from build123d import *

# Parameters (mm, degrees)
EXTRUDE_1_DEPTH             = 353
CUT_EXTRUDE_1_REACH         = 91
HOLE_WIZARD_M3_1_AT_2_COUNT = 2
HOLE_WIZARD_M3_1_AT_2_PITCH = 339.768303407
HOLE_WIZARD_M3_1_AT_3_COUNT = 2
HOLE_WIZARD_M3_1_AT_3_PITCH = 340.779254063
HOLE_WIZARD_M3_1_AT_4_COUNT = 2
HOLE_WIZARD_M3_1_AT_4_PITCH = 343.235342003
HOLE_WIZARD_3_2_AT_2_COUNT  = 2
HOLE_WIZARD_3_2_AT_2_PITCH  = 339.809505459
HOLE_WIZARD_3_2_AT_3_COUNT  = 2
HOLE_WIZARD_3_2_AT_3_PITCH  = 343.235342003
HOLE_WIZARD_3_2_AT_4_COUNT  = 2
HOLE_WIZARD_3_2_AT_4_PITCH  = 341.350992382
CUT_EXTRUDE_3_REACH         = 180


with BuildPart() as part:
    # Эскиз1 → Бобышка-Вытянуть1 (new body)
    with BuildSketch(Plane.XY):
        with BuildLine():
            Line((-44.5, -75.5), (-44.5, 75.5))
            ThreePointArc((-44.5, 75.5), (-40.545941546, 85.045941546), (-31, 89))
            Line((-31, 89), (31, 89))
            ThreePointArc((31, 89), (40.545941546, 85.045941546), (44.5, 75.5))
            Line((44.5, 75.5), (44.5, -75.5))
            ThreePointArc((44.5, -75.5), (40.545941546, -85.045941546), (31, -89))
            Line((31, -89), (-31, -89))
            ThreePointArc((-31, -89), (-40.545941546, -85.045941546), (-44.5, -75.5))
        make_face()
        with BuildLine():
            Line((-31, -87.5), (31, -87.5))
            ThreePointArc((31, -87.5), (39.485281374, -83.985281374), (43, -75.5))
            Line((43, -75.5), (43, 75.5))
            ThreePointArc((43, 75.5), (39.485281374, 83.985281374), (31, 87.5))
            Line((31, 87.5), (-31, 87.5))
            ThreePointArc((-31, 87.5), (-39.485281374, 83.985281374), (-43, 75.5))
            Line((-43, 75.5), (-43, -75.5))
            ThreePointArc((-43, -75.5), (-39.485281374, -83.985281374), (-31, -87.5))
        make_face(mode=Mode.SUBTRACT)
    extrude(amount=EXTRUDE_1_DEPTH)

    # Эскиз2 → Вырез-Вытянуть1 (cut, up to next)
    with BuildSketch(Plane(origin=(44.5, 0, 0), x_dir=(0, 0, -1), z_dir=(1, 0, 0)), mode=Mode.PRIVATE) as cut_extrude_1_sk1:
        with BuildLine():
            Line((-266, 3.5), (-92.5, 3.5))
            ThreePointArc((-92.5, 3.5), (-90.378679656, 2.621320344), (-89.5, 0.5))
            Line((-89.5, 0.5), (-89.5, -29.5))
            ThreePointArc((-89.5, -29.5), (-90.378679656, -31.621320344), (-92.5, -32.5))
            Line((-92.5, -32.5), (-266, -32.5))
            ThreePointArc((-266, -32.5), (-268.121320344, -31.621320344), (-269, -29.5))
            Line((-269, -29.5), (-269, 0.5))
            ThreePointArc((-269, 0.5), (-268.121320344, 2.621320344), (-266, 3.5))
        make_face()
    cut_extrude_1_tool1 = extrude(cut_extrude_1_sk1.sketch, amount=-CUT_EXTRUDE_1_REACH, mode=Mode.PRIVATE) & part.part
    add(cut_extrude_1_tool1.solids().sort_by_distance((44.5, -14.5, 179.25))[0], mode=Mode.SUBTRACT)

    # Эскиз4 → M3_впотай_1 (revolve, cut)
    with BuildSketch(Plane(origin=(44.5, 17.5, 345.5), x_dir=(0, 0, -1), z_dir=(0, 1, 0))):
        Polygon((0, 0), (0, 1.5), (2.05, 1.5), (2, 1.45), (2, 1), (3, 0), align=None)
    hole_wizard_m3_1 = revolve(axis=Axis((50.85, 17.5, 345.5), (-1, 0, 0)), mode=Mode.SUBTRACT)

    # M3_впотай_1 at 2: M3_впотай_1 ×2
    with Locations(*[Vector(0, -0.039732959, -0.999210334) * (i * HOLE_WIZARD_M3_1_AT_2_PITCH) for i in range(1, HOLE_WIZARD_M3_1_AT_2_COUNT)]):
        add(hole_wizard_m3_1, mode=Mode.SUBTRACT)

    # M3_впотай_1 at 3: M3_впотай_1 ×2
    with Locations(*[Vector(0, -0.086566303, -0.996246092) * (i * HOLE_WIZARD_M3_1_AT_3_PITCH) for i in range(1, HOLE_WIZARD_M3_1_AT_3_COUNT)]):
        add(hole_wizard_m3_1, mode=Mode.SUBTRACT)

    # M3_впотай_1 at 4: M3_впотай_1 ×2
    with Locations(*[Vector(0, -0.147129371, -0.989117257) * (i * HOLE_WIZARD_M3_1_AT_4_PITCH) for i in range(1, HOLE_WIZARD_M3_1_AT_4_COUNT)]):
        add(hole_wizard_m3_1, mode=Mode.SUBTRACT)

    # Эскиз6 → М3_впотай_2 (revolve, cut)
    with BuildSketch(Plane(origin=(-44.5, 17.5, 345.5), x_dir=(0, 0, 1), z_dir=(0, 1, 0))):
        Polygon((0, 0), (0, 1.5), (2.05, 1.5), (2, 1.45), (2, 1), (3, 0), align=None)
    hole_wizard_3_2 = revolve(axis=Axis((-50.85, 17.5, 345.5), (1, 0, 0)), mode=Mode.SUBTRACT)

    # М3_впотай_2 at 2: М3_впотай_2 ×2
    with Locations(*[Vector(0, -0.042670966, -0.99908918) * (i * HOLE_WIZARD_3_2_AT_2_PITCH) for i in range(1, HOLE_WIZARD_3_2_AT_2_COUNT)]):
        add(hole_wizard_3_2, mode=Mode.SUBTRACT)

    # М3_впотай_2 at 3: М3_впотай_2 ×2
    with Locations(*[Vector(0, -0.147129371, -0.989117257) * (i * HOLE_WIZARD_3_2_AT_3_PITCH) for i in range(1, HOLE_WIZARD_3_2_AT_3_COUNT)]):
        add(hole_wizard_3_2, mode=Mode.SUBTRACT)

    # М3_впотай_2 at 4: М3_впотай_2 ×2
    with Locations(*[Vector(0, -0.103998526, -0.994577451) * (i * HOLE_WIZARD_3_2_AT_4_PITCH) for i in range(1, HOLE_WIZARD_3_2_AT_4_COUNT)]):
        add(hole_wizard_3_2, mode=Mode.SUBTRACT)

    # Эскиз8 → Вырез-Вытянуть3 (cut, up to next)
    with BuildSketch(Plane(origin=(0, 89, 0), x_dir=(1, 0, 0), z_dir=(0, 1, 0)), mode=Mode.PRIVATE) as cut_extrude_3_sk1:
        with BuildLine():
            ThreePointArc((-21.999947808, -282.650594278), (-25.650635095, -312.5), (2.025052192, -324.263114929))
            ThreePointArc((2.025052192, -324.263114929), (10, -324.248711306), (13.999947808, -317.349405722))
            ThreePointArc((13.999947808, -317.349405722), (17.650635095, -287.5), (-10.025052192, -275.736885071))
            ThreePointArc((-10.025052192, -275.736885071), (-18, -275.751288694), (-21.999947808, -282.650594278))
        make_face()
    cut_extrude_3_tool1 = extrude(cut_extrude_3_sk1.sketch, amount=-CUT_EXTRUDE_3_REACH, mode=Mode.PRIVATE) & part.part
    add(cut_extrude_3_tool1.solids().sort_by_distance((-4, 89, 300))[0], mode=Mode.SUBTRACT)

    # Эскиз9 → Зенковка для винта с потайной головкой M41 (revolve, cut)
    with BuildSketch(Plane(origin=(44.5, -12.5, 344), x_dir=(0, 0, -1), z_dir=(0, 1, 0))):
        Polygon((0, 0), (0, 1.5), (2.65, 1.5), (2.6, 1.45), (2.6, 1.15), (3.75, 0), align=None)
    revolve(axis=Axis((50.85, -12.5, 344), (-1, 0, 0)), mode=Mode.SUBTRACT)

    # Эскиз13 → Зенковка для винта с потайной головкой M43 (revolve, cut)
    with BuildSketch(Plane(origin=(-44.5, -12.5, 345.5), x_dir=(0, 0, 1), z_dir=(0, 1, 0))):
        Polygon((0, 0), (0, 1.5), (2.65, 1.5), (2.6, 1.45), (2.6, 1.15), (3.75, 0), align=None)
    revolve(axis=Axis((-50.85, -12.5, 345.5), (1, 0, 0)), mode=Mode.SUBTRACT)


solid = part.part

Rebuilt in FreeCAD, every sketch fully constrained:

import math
import FreeCAD as App
import Part
import Sketcher
from FreeCAD import Vector
Q = App.Units.Quantity


def add_polygon(sketch, points):
    """Adds a closed chain of lines whose ends are joined by coincident constraints."""
    first, n = sketch.GeometryCount, len(points)
    for a, b in zip(points, points[1:] + points[:1]):
        sketch.addGeometry(Part.LineSegment(App.Vector(*a, 0), App.Vector(*b, 0)), False)
    for i in range(n):
        sketch.addConstraint(Sketcher.Constraint("Coincident", first + i, 2, first + (i + 1) % n, 1))

doc = App.newDocument("Part")
body = doc.addObject("PartDesign::Body", "Body")

# Sketch on XY plane
sketch1 = body.newObject("Sketcher::SketchObject", "Sketch")
sketch1.AttachmentSupport = (doc.getObject("XY_Plane"), [""])
sketch1.MapMode = "FlatFace"
sketch1.addGeometry([
    Part.LineSegment(Vector(-44, 76, 0), Vector(-44, -76, 0)),  # 0
    Part.ArcOfCircle(Part.Circle(Vector(-31, -76, 0), Vector(0, 0, 1), 14), math.radians(180), math.radians(270)),  # 1
    Part.LineSegment(Vector(-31, -89, 0), Vector(31, -89, 0)),  # 2
    Part.ArcOfCircle(Part.Circle(Vector(31, -76, 0), Vector(0, 0, 1), 14), math.radians(-90), math.radians(0)),  # 3
    Part.LineSegment(Vector(44, -76, 0), Vector(44, 76, 0)),  # 4
    Part.ArcOfCircle(Part.Circle(Vector(31, 76, 0), Vector(0, 0, 1), 14), math.radians(0), math.radians(90)),  # 5
    Part.LineSegment(Vector(31, 89, 0), Vector(-31, 89, 0)),  # 6
    Part.ArcOfCircle(Part.Circle(Vector(-31, 76, 0), Vector(0, 0, 1), 14), math.radians(90), math.radians(180)),  # 7
    Part.ArcOfCircle(Part.Circle(Vector(-31, -75, 0), Vector(0, 0, 1), 12), math.radians(-180), math.radians(-90)),  # 8
    Part.LineSegment(Vector(-43, -76, 0), Vector(-43, 76, 0)),  # 9
    Part.ArcOfCircle(Part.Circle(Vector(-31, 75, 0), Vector(0, 0, 1), 12), math.radians(90), math.radians(180)),  # 10
    Part.LineSegment(Vector(-31, 88, 0), Vector(31, 88, 0)),  # 11
    Part.ArcOfCircle(Part.Circle(Vector(31, 75, 0), Vector(0, 0, 1), 12), math.radians(0), math.radians(90)),  # 12
    Part.LineSegment(Vector(43, 76, 0), Vector(43, -76, 0)),  # 13
    Part.ArcOfCircle(Part.Circle(Vector(31, -75, 0), Vector(0, 0, 1), 12), math.radians(-90), math.radians(0)),  # 14
    Part.LineSegment(Vector(31, -88, 0), Vector(-31, -88, 0)),  # 15
], False)
sketch1.addConstraint([
    Sketcher.Constraint("Tangent", 0, 2, 1, 1),
    Sketcher.Constraint("Tangent", 1, 2, 2, 1),
    Sketcher.Constraint("Tangent", 2, 2, 3, 1),
    Sketcher.Constraint("Tangent", 3, 2, 4, 1),
    Sketcher.Constraint("Tangent", 4, 2, 5, 1),
    Sketcher.Constraint("Tangent", 5, 2, 6, 1),
    Sketcher.Constraint("Tangent", 6, 2, 7, 1),
    Sketcher.Constraint("Tangent", 7, 2, 0, 1),
    Sketcher.Constraint("Tangent", 8, 1, 9, 1),
    Sketcher.Constraint("Tangent", 9, 2, 10, 2),
    Sketcher.Constraint("Tangent", 10, 1, 11, 1),
    Sketcher.Constraint("Tangent", 11, 2, 12, 2),
    Sketcher.Constraint("Tangent", 12, 1, 13, 1),
    Sketcher.Constraint("Tangent", 13, 2, 14, 2),
    Sketcher.Constraint("Tangent", 14, 1, 15, 1),
    Sketcher.Constraint("Tangent", 15, 2, 8, 2),
    Sketcher.Constraint("Vertical", 0),
    Sketcher.Constraint("Horizontal", 2),
    Sketcher.Constraint("Vertical", 4),
    Sketcher.Constraint("Horizontal", 6),
    Sketcher.Constraint("Vertical", 9),
    Sketcher.Constraint("Horizontal", 11),
    Sketcher.Constraint("Vertical", 13),
    Sketcher.Constraint("Horizontal", 15),
    Sketcher.Constraint("Coincident", 8, 3, 1, 3),
    Sketcher.Constraint("Coincident", 10, 3, 7, 3),
    Sketcher.Constraint("Coincident", 12, 3, 5, 3),
    Sketcher.Constraint("Equal", 1, 3),
    Sketcher.Constraint("Equal", 3, 5),
    Sketcher.Constraint("Equal", 5, 7),
    Sketcher.Constraint("Equal", 12, 14),
    Sketcher.Constraint("Symmetric", 1, 3, 5, 3, -1, 1),
    Sketcher.Constraint("Radius", 8, 12.0),
    Sketcher.Constraint("Radius", 1, 13.5),
    Sketcher.Constraint("DistanceX", 2, 1, 2, 2, 62.0),
    Sketcher.Constraint("DistanceY", 0, 2, 0, 1, 151.0),
])
pad1 = body.newObject("PartDesign::Pad", "Pad")
pad1.Profile = sketch1
pad1.Length = 353

# Sketch on YZ plane
sketch2 = body.newObject("Sketcher::SketchObject", "Sketch001")
sketch2.AttachmentSupport = (doc.getObject("YZ_Plane"), [""])
sketch2.MapMode = "FlatFace"
sketch2.AttachmentOffset = App.Placement(Vector(0, 0, 44.5), App.Rotation())
sketch2.addGeometry([
    Part.LineSegment(Vector(3.5, 92.5, 0), Vector(3.5, 266, 0)),  # 0
    Part.ArcOfCircle(Part.Circle(Vector(0.5, 266, 0), Vector(0, 0, 1), 3), math.radians(0), math.radians(90)),  # 1
    Part.LineSegment(Vector(0.5, 269, 0), Vector(-29.5, 269, 0)),  # 2
    Part.ArcOfCircle(Part.Circle(Vector(-29.5, 266, 0), Vector(0, 0, 1), 3), math.radians(90), math.radians(180)),  # 3
    Part.LineSegment(Vector(-32.5, 266, 0), Vector(-32.5, 92.5, 0)),  # 4
    Part.ArcOfCircle(Part.Circle(Vector(-29.5, 92.5, 0), Vector(0, 0, 1), 3), math.radians(180), math.radians(270)),  # 5
    Part.LineSegment(Vector(-29.5, 89.5, 0), Vector(0.5, 89.5, 0)),  # 6
    Part.ArcOfCircle(Part.Circle(Vector(0.5, 92.5, 0), Vector(0, 0, 1), 3), math.radians(-90), math.radians(0)),  # 7
], False)
sketch2.addConstraint([
    Sketcher.Constraint("Tangent", 0, 2, 1, 1),
    Sketcher.Constraint("Tangent", 1, 2, 2, 1),
    Sketcher.Constraint("Tangent", 2, 2, 3, 1),
    Sketcher.Constraint("Tangent", 3, 2, 4, 1),
    Sketcher.Constraint("Tangent", 4, 2, 5, 1),
    Sketcher.Constraint("Tangent", 5, 2, 6, 1),
    Sketcher.Constraint("Tangent", 6, 2, 7, 1),
    Sketcher.Constraint("Tangent", 7, 2, 0, 1),
    Sketcher.Constraint("Vertical", 0),
    Sketcher.Constraint("Horizontal", 2),
    Sketcher.Constraint("Vertical", 4),
    Sketcher.Constraint("Horizontal", 6),
    Sketcher.Constraint("Equal", 1, 3),
    Sketcher.Constraint("Equal", 3, 5),
    Sketcher.Constraint("Equal", 5, 7),
    Sketcher.Constraint("Radius", 1, 3.0),
    Sketcher.Constraint("DistanceX", 2, 2, 2, 1, 30.0),
    Sketcher.Constraint("DistanceY", 0, 1, 0, 2, 173.5),
    Sketcher.Constraint("DistanceY", -1, 1, 1, 3, 266.0),
    Sketcher.Constraint("DistanceX", -1, 1, 1, 3, 0.5),
])
pocket1 = body.newObject("PartDesign::Pocket", "Pocket")
pocket1.Profile = sketch2
pocket1.Type = "UpToFirst"

# Sketch on XZ plane
sketch3 = body.newObject("Sketcher::SketchObject", "Sketch002")
sketch3.AttachmentSupport = (doc.getObject("XZ_Plane"), [""])
sketch3.MapMode = "FlatFace"
sketch3.AttachmentOffset = App.Placement(Vector(0, 0, -17.5), App.Rotation())
add_polygon(sketch3, [(43, 345.5), (44.5, 345.5), (44.5, 342.5), (43.5, 343.5), (43.05, 343.5), (43, 343.45)])  # lines 0-5
sketch3.addGeometry(Part.LineSegment(Vector(44.5, 345.5, 0), Vector(43, 345.5, 0)), True)  # axis
sketch3.addConstraint([
    Sketcher.Constraint("Horizontal", 0),
    Sketcher.Constraint("Vertical", 1),
    Sketcher.Constraint("Horizontal", 3),
    Sketcher.Constraint("Vertical", 5),
    Sketcher.Constraint("Horizontal", 6),
    Sketcher.Constraint("Coincident", 6, 1, 0, 2),
    Sketcher.Constraint("Perpendicular", 2, 4),
    Sketcher.Constraint("Vertical", 4, 2, 6, 2),
    Sketcher.Constraint("DistanceY", 1, 2, 1, 1, 3.0),
    Sketcher.Constraint("Angle", 2, Q("135 deg")),
    Sketcher.Constraint("DistanceX", 0, 1, 0, 2, 1.5),
    Sketcher.Constraint("DistanceX", -1, 1, 4, 2, 43.0),
    Sketcher.Constraint("DistanceX", 2, 2, 1, 2, 1.0),
    Sketcher.Constraint("DistanceX", 3, 2, 3, 1, 0.45),
    Sketcher.Constraint("DistanceY", -1, 1, 0, 2, 345.5),
])
groove = body.newObject("PartDesign::Groove", "Groove")
groove.Profile = sketch3
groove.ReferenceAxis = (sketch3, ["Axis0"])
groove.Angle = 360
doc.recompute()

datumline = body.newObject("PartDesign::Line", "DatumLine")
datumline.Placement = App.Placement(Vector(0, 0, 0), App.Rotation(Vector(0, 0, 1), Vector(0, -0.039732959, -0.999210334)))
linearpattern = body.newObject("PartDesign::LinearPattern", "LinearPattern")
linearpattern.Originals = [groove]
linearpattern.Direction = (datumline, [""])
linearpattern.Mode = "offset"
linearpattern.Offset = 339.768303
linearpattern.Occurrences = 2
body.Tip = linearpattern
doc.recompute()

datumline2 = body.newObject("PartDesign::Line", "DatumLine001")
datumline2.Placement = App.Placement(Vector(0, 0, 0), App.Rotation(Vector(0, 0, 1), Vector(0, -0.086566303, -0.996246092)))
linearpattern2 = body.newObject("PartDesign::LinearPattern", "LinearPattern001")
linearpattern2.Originals = [groove]
linearpattern2.Direction = (datumline2, [""])
linearpattern2.Mode = "offset"
linearpattern2.Offset = 340.779254
linearpattern2.Occurrences = 2
body.Tip = linearpattern2
doc.recompute()

datumline3 = body.newObject("PartDesign::Line", "DatumLine002")
datumline3.Placement = App.Placement(Vector(0, 0, 0), App.Rotation(Vector(0, 0, 1), Vector(0, -0.147129371, -0.989117257)))
linearpattern3 = body.newObject("PartDesign::LinearPattern", "LinearPattern002")
linearpattern3.Originals = [groove]
linearpattern3.Direction = (datumline3, [""])
linearpattern3.Mode = "offset"
linearpattern3.Offset = 343.235342
linearpattern3.Occurrences = 2
body.Tip = linearpattern3

# Sketch on XZ plane
sketch4 = body.newObject("Sketcher::SketchObject", "Sketch003")
sketch4.AttachmentSupport = (doc.getObject("XZ_Plane"), [""])
sketch4.MapMode = "FlatFace"
sketch4.AttachmentOffset = App.Placement(Vector(0, 0, -17.5), App.Rotation())
add_polygon(sketch4, [(-43, 345.5), (-44.5, 345.5), (-44.5, 348.5), (-43.5, 347.5), (-43.05, 347.5), (-43, 347.55)])  # lines 0-5
sketch4.addGeometry(Part.LineSegment(Vector(-44.5, 345.5, 0), Vector(-43, 345.5, 0)), True)  # axis
sketch4.addConstraint([
    Sketcher.Constraint("Horizontal", 0),
    Sketcher.Constraint("Vertical", 1),
    Sketcher.Constraint("Horizontal", 3),
    Sketcher.Constraint("Vertical", 5),
    Sketcher.Constraint("Horizontal", 6),
    Sketcher.Constraint("Coincident", 6, 1, 0, 2),
    Sketcher.Constraint("Perpendicular", 2, 4),
    Sketcher.Constraint("Vertical", 4, 2, 6, 2),
    Sketcher.Constraint("DistanceY", 1, 1, 1, 2, 3.0),
    Sketcher.Constraint("Angle", 2, Q("-45 deg")),
    Sketcher.Constraint("DistanceX", 0, 2, 0, 1, 1.5),
    Sketcher.Constraint("DistanceX", 4, 2, -1, 1, 43.0),
    Sketcher.Constraint("DistanceX", 1, 2, 2, 2, 1.0),
    Sketcher.Constraint("DistanceX", 3, 1, 3, 2, 0.45),
    Sketcher.Constraint("DistanceY", -1, 1, 0, 2, 345.5),
])
groove2 = body.newObject("PartDesign::Groove", "Groove001")
groove2.Profile = sketch4
groove2.ReferenceAxis = (sketch4, ["Axis0"])
groove2.Angle = 360
doc.recompute()

datumline4 = body.newObject("PartDesign::Line", "DatumLine003")
datumline4.Placement = App.Placement(Vector(0, 0, 0), App.Rotation(Vector(0, 0, 1), Vector(0, -0.042670966, -0.99908918)))
linearpattern4 = body.newObject("PartDesign::LinearPattern", "LinearPattern003")
linearpattern4.Originals = [groove2]
linearpattern4.Direction = (datumline4, [""])
linearpattern4.Mode = "offset"
linearpattern4.Offset = 339.809506
linearpattern4.Occurrences = 2
body.Tip = linearpattern4
doc.recompute()

datumline5 = body.newObject("PartDesign::Line", "DatumLine004")
datumline5.Placement = App.Placement(Vector(0, 0, 0), App.Rotation(Vector(0, 0, 1), Vector(0, -0.147129371, -0.989117257)))
linearpattern5 = body.newObject("PartDesign::LinearPattern", "LinearPattern004")
linearpattern5.Originals = [groove2]
linearpattern5.Direction = (datumline5, [""])
linearpattern5.Mode = "offset"
linearpattern5.Offset = 343.235342
linearpattern5.Occurrences = 2
body.Tip = linearpattern5
doc.recompute()

datumline6 = body.newObject("PartDesign::Line", "DatumLine005")
datumline6.Placement = App.Placement(Vector(0, 0, 0), App.Rotation(Vector(0, 0, 1), Vector(0, -0.103998526, -0.994577451)))
linearpattern6 = body.newObject("PartDesign::LinearPattern", "LinearPattern005")
linearpattern6.Originals = [groove2]
linearpattern6.Direction = (datumline6, [""])
linearpattern6.Mode = "offset"
linearpattern6.Offset = 341.350992
linearpattern6.Occurrences = 2
body.Tip = linearpattern6

# Sketch on XZ plane
sketch5 = body.newObject("Sketcher::SketchObject", "Sketch004")
sketch5.AttachmentSupport = (doc.getObject("XZ_Plane"), [""])
sketch5.MapMode = "FlatFace"
sketch5.AttachmentOffset = App.Placement(Vector(0, 0, -89), App.Rotation())
sketch5.addGeometry([
    Part.ArcOfCircle(Part.Circle(Vector(-4, 300, 0), Vector(0, 0, 1), 25), math.radians(76), math.radians(224)),
    Part.ArcOfCircle(Part.Circle(Vector(6, 317, 0), Vector(0, 0, 1), 8), math.radians(0), math.radians(120)),
    Part.ArcOfCircle(Part.Circle(Vector(-4, 300, 0), Vector(0, 0, 1), 25), math.radians(-104), math.radians(44)),
    Part.ArcOfCircle(Part.Circle(Vector(-14, 283, 0), Vector(0, 0, 1), 8), math.radians(-180), math.radians(-60)),
], False)
sketch5.addConstraint([
    Sketcher.Constraint("Coincident", 0, 1, 1, 2),
    Sketcher.Constraint("Coincident", 1, 1, 2, 2),
    Sketcher.Constraint("Coincident", 2, 1, 3, 2),
    Sketcher.Constraint("Coincident", 3, 1, 0, 2),
    Sketcher.Constraint("Coincident", 2, 3, 0, 3),
    Sketcher.Constraint("Equal", 0, 2),
    Sketcher.Constraint("Equal", 1, 3),
    Sketcher.Constraint("Radius", 0, 25.0),
    Sketcher.Constraint("Radius", 1, 8.0),
    Sketcher.Constraint("DistanceX", 0, 3, -1, 1, 4.0),
    Sketcher.Constraint("DistanceY", -1, 1, 0, 3, 300.0),
    Sketcher.Constraint("DistanceX", -1, 1, 1, 3, 6.0),
    Sketcher.Constraint("DistanceX", 3, 3, -1, 1, 14.0),
    Sketcher.Constraint("DistanceX", 2, 1, 1, 1, 24.025),
    Sketcher.Constraint("DistanceY", -1, 1, 1, 3, 317.320508),
])
pocket2 = body.newObject("PartDesign::Pocket", "Pocket001")
pocket2.Profile = sketch5
pocket2.Type = "UpToFirst"
pocket2.Reversed = True

# Sketch on XZ plane
sketch6 = body.newObject("Sketcher::SketchObject", "Sketch005")
sketch6.AttachmentSupport = (doc.getObject("XZ_Plane"), [""])
sketch6.MapMode = "FlatFace"
sketch6.AttachmentOffset = App.Placement(Vector(0, 0, 12.5), App.Rotation())
add_polygon(sketch6, [(43, 344), (44.5, 344), (44.5, 340.25), (43.35, 341.4), (43.05, 341.4), (43, 341.35)])  # lines 0-5
sketch6.addGeometry(Part.LineSegment(Vector(44.5, 344, 0), Vector(43, 344, 0)), True)  # axis
sketch6.addConstraint([
    Sketcher.Constraint("Horizontal", 0),
    Sketcher.Constraint("Vertical", 1),
    Sketcher.Constraint("Horizontal", 3),
    Sketcher.Constraint("Vertical", 5),
    Sketcher.Constraint("Horizontal", 6),
    Sketcher.Constraint("Coincident", 6, 1, 0, 2),
    Sketcher.Constraint("Perpendicular", 2, 4),
    Sketcher.Constraint("Vertical", 4, 2, 6, 2),
    Sketcher.Constraint("Angle", 2, Q("135 deg")),
    Sketcher.Constraint("DistanceX", 0, 1, 0, 2, 1.5),
    Sketcher.Constraint("DistanceX", 3, 2, 3, 1, 0.3),
    Sketcher.Constraint("DistanceY", -1, 1, 0, 2, 344.0),
    Sketcher.Constraint("DistanceX", -1, 1, 4, 2, 43.0),
    Sketcher.Constraint("DistanceY", 1, 2, 1, 1, 3.75),
    Sketcher.Constraint("DistanceY", 5, 1, 5, 2, 2.65),
])
groove3 = body.newObject("PartDesign::Groove", "Groove002")
groove3.Profile = sketch6
groove3.ReferenceAxis = (sketch6, ["Axis0"])
groove3.Angle = 360

# Sketch on XZ plane
sketch7 = body.newObject("Sketcher::SketchObject", "Sketch006")
sketch7.AttachmentSupport = (doc.getObject("XZ_Plane"), [""])
sketch7.MapMode = "FlatFace"
sketch7.AttachmentOffset = App.Placement(Vector(0, 0, 12.5), App.Rotation())
add_polygon(sketch7, [(-43, 345.5), (-44.5, 345.5), (-44.5, 349.25), (-43.35, 348.1), (-43.05, 348.1), (-43, 348.15)])  # lines 0-5
sketch7.addGeometry(Part.LineSegment(Vector(-44.5, 345.5, 0), Vector(-43, 345.5, 0)), True)  # axis
sketch7.addConstraint([
    Sketcher.Constraint("Horizontal", 0),
    Sketcher.Constraint("Vertical", 1),
    Sketcher.Constraint("Horizontal", 3),
    Sketcher.Constraint("Vertical", 5),
    Sketcher.Constraint("Horizontal", 6),
    Sketcher.Constraint("Coincident", 6, 1, 0, 2),
    Sketcher.Constraint("Perpendicular", 2, 4),
    Sketcher.Constraint("Vertical", 4, 2, 6, 2),
    Sketcher.Constraint("Angle", 2, Q("-45 deg")),
    Sketcher.Constraint("DistanceX", 0, 2, 0, 1, 1.5),
    Sketcher.Constraint("DistanceX", 3, 1, 3, 2, 0.3),
    Sketcher.Constraint("DistanceX", 4, 2, -1, 1, 43.0),
    Sketcher.Constraint("DistanceY", 1, 1, 1, 2, 3.75),
    Sketcher.Constraint("DistanceY", 5, 2, 5, 1, 2.65),
    Sketcher.Constraint("DistanceY", -1, 1, 0, 2, 345.5),
])
groove4 = body.newObject("PartDesign::Groove", "Groove003")
groove4.Profile = sketch7
groove4.ReferenceAxis = (sketch7, ["Axis0"])
groove4.Angle = 360

doc.recompute()
